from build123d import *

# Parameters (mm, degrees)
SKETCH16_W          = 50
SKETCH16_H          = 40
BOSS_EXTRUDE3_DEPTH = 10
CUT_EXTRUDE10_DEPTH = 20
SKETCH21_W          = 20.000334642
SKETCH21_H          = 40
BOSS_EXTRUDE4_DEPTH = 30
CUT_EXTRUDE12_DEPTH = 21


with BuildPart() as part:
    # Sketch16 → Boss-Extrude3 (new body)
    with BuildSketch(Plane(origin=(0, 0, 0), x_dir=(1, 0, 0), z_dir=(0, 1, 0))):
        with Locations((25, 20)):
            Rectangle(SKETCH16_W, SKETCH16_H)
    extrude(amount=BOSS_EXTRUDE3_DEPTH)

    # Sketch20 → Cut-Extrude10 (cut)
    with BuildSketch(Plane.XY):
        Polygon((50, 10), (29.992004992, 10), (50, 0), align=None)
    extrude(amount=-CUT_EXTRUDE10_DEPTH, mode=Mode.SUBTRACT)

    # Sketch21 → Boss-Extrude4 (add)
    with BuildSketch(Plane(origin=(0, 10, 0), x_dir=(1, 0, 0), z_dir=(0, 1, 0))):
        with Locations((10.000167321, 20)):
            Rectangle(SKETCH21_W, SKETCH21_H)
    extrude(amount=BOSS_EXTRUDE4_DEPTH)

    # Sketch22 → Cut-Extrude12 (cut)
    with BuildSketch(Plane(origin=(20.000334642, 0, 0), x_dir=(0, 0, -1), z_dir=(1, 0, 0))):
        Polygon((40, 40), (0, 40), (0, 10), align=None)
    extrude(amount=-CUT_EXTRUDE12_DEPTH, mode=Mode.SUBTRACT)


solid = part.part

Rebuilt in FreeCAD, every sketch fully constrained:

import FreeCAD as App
import Part
import Sketcher
from FreeCAD import Vector
Q = App.Units.Quantity


def add_polygon(sketch, points):
    """Adds a closed chain of lines whose ends are joined by coincident constraints."""
    first, n = sketch.GeometryCount, len(points)
    for a, b in zip(points, points[1:] + points[:1]):
        sketch.addGeometry(Part.LineSegment(App.Vector(*a, 0), App.Vector(*b, 0)), False)
    for i in range(n):
        sketch.addConstraint(Sketcher.Constraint("Coincident", first + i, 2, first + (i + 1) % n, 1))

doc = App.newDocument("Part")
body = doc.addObject("PartDesign::Body", "Body")

sketch1 = body.newObject("Sketcher::SketchObject", "Sketch")
sketch1.AttachmentSupport = (doc.getObject("XZ_Plane"), [""])
sketch1.MapMode = "FlatFace"
add_polygon(sketch1, [(0, -40), (0, 0), (50, 0), (50, -40)])
sketch1.addConstraint(Sketcher.Constraint("Vertical", 0))
sketch1.addConstraint(Sketcher.Constraint("Horizontal", 1))
sketch1.addConstraint(Sketcher.Constraint("Vertical", 2))
sketch1.addConstraint(Sketcher.Constraint("Horizontal", 3))
sketch1.addConstraint(Sketcher.Constraint("Coincident", 0, 2, -1, 1))
sketch1.addConstraint(Sketcher.Constraint("DistanceX", 1, 1, 1, 2, Q("50 mm")))
sketch1.addConstraint(Sketcher.Constraint("DistanceY", 0, 1, 0, 2, Q("40 mm")))
pad1 = body.newObject("PartDesign::Pad", "Pad")
pad1.Profile = sketch1
pad1.Length = 10
pad1.Reversed = True

sketch2 = body.newObject("Sketcher::SketchObject", "Sketch001")
sketch2.AttachmentSupport = (doc.getObject("XY_Plane"), [""])
sketch2.MapMode = "FlatFace"
add_polygon(sketch2, [(50, 10), (29.992005, 10), (50, 0)])
sketch2.addConstraint(Sketcher.Constraint("Horizontal", 0))
sketch2.addConstraint(Sketcher.Constraint("Vertical", 2))
sketch2.addConstraint(Sketcher.Constraint("PointOnObject", 1, 2, -1))
sketch2.addConstraint(Sketcher.Constraint("DistanceY", 2, 1, 2, 2, Q("10 mm")))
sketch2.addConstraint(Sketcher.Constraint("DistanceX", -1, 1, 1, 2, Q("50 mm")))
sketch2.addConstraint(Sketcher.Constraint("Distance", 1, Q("22.367831 mm")))
pocket1 = body.newObject("PartDesign::Pocket", "Pocket")
pocket1.Profile = sketch2
pocket1.Length = 20

sketch3 = body.newObject("Sketcher::SketchObject", "Sketch002")
sketch3.AttachmentSupport = (doc.getObject("XZ_Plane"), [""])
sketch3.MapMode = "FlatFace"
sketch3.AttachmentOffset = App.Placement(Vector(0, 0, -10), App.Rotation())
add_polygon(sketch3, [(0, -40), (0, 0), (20.000335, 0), (20.000335, -40)])
sketch3.addConstraint(Sketcher.Constraint("Vertical", 0))
sketch3.addConstraint(Sketcher.Constraint("Horizontal", 1))
sketch3.addConstraint(Sketcher.Constraint("Vertical", 2))
sketch3.addConstraint(Sketcher.Constraint("Horizontal", 3))
sketch3.addConstraint(Sketcher.Constraint("Coincident", 0, 2, -1, 1))
sketch3.addConstraint(Sketcher.Constraint("DistanceY", 0, 1, 0, 2, Q("40 mm")))
sketch3.addConstraint(Sketcher.Constraint("DistanceX", 1, 1, 1, 2, Q("20.000335 mm")))
pad2 = body.newObject("PartDesign::Pad", "Pad001")
pad2.Profile = sketch3
pad2.Length = 30
pad2.Reversed = True

sketch4 = body.newObject("Sketcher::SketchObject", "Sketch003")
sketch4.AttachmentSupport = (doc.getObject("YZ_Plane"), [""])
sketch4.MapMode = "FlatFace"
sketch4.AttachmentOffset = App.Placement(Vector(0, 0, 20.000335), App.Rotation())
add_polygon(sketch4, [(40, -40), (40, 0), (10, 0)])
sketch4.addConstraint(Sketcher.Constraint("Vertical", 0))
sketch4.addConstraint(Sketcher.Constraint("Horizontal", 1))
sketch4.addConstraint(Sketcher.Constraint("PointOnObject", 0, 2, -1))
sketch4.addConstraint(Sketcher.Constraint("DistanceX", 1, 2, 1, 1, Q("30 mm")))
sketch4.addConstraint(Sketcher.Constraint("DistanceY", 0, 1, 0, 2, Q("40 mm")))
sketch4.addConstraint(Sketcher.Constraint("DistanceX", -1, 1, 0, 2, Q("40 mm")))
pocket2 = body.newObject("PartDesign::Pocket", "Pocket001")
pocket2.Profile = sketch4
pocket2.Length = 21

doc.recompute()
